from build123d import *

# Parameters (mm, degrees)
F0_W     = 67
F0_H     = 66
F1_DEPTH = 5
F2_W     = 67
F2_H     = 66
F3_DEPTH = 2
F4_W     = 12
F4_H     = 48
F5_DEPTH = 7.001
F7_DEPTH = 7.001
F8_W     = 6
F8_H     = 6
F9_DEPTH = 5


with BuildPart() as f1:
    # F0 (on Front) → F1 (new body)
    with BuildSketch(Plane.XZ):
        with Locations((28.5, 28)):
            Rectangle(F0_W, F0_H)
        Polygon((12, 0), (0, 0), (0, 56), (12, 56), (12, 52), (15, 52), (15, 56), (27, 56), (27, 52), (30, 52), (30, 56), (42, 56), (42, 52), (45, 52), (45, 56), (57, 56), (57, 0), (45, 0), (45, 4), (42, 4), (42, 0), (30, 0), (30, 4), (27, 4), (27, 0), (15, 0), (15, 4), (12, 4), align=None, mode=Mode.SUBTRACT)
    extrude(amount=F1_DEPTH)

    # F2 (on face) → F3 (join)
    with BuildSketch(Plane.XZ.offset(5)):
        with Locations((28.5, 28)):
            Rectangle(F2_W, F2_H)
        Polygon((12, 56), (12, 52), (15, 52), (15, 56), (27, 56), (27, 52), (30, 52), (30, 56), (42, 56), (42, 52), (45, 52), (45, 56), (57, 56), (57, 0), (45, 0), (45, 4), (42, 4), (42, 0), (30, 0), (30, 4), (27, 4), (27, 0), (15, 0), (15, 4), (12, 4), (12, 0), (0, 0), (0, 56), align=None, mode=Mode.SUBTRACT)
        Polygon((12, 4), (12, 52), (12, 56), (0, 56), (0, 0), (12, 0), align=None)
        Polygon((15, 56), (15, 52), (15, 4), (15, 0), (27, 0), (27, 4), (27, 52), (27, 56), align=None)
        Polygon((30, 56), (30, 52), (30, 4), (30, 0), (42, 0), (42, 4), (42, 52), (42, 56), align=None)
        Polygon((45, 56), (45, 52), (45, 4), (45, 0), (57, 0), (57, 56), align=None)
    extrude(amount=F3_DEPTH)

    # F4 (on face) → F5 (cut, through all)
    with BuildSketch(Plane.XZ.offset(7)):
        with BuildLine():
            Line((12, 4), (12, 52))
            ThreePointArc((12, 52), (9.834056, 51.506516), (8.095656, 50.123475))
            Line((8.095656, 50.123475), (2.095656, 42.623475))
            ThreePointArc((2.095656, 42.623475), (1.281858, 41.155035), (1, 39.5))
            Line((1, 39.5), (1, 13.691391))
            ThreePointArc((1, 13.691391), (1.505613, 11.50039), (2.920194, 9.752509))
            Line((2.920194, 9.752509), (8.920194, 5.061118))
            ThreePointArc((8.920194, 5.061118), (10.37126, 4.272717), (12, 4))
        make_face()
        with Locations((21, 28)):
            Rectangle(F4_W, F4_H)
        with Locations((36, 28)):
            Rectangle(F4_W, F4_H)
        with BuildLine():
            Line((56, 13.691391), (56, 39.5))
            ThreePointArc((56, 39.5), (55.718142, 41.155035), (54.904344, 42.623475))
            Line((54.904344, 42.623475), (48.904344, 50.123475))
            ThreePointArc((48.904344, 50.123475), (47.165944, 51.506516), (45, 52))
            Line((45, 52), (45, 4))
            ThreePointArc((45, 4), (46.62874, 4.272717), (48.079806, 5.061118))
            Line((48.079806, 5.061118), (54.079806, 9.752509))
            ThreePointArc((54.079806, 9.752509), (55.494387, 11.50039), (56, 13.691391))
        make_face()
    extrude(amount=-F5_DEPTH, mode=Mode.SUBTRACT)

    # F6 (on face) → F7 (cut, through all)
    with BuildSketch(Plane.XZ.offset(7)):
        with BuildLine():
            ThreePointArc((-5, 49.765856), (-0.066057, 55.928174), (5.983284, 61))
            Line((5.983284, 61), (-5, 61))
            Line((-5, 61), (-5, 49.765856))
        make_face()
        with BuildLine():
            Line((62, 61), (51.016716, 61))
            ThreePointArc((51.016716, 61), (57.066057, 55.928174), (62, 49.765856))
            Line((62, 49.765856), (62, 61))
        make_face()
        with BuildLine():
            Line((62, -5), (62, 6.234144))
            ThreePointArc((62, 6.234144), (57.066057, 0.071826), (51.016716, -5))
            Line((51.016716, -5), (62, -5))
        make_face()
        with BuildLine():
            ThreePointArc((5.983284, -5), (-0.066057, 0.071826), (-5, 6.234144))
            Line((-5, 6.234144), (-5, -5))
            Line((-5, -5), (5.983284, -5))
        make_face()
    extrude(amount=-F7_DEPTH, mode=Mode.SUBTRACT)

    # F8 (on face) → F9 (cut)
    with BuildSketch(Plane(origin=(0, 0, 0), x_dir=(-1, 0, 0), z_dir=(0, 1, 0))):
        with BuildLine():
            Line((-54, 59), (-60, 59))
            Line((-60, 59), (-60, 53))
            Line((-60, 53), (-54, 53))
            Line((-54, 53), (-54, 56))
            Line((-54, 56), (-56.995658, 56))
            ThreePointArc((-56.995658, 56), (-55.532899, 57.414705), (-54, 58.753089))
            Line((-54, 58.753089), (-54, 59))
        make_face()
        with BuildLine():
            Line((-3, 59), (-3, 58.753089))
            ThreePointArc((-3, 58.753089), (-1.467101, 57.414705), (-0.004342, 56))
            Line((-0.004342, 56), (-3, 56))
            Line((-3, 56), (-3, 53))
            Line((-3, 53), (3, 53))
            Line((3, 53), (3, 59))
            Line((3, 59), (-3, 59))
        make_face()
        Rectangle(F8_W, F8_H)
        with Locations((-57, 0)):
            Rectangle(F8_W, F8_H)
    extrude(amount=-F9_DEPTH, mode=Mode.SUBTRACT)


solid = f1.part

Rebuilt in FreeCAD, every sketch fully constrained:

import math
import FreeCAD as App
import Part
import Sketcher
Q = App.Units.Quantity


def add_polygon(sketch, points):
    """Adds a closed chain of lines whose ends are joined by coincident constraints."""
    first, n = sketch.GeometryCount, len(points)
    for a, b in zip(points, points[1:] + points[:1]):
        sketch.addGeometry(Part.LineSegment(App.Vector(*a, 0), App.Vector(*b, 0)), False)
    for i in range(n):
        sketch.addConstraint(Sketcher.Constraint("Coincident", first + i, 2, first + (i + 1) % n, 1))

doc = App.newDocument("Part")
body = doc.addObject("PartDesign::Body", "Body")

# Sketch on XZ plane
sketch1 = body.newObject("Sketcher::SketchObject", "Sketch")
sketch1.AttachmentSupport = (doc.getObject("XZ_Plane"), [""])
sketch1.MapMode = "FlatFace"
add_polygon(sketch1, [(-5, 61), (-5, -5), (62, -5), (62, 61)])  # lines 0-3
add_polygon(sketch1, [(12, 4), (12, 0), (0, 0), (0, 56), (12, 56), (12, 52), (15, 52), (15, 56), (27, 56), (27, 52), (30, 52), (30, 56), (42, 56), (42, 52), (45, 52), (45, 56), (57, 56), (57, 0), (45, 0), (45, 4), (42, 4), (42, 0), (30, 0), (30, 4), (27, 4), (27, 0), (15, 0), (15, 4)])  # lines 4-31
sketch1.addConstraint([
    Sketcher.Constraint("Vertical", 0),
    Sketcher.Constraint("Horizontal", 1),
    Sketcher.Constraint("Vertical", 2),
    Sketcher.Constraint("Horizontal", 3),
    Sketcher.Constraint("Vertical", 4),
    Sketcher.Constraint("Horizontal", 5),
    Sketcher.Constraint("Vertical", 6),
    Sketcher.Constraint("Horizontal", 7),
    Sketcher.Constraint("Vertical", 8),
    Sketcher.Constraint("Horizontal", 9),
    Sketcher.Constraint("Vertical", 10),
    Sketcher.Constraint("Horizontal", 11),
    Sketcher.Constraint("Vertical", 12),
    Sketcher.Constraint("Horizontal", 13),
    Sketcher.Constraint("Vertical", 14),
    Sketcher.Constraint("Horizontal", 15),
    Sketcher.Constraint("Vertical", 16),
    Sketcher.Constraint("Horizontal", 17),
    Sketcher.Constraint("Vertical", 18),
    Sketcher.Constraint("Horizontal", 19),
    Sketcher.Constraint("Vertical", 20),
    Sketcher.Constraint("Horizontal", 21),
    Sketcher.Constraint("Vertical", 22),
    Sketcher.Constraint("Horizontal", 23),
    Sketcher.Constraint("Vertical", 24),
    Sketcher.Constraint("Horizontal", 25),
    Sketcher.Constraint("Vertical", 26),
    Sketcher.Constraint("Horizontal", 27),
    Sketcher.Constraint("Vertical", 28),
    Sketcher.Constraint("Horizontal", 29),
    Sketcher.Constraint("Vertical", 30),
    Sketcher.Constraint("Horizontal", 31),
    Sketcher.Constraint("Coincident", 5, 2, -1, 1),
    Sketcher.Constraint("PointOnObject", 20, 2, -1),
    Sketcher.Constraint("PointOnObject", 24, 2, -1),
    Sketcher.Constraint("PointOnObject", 28, 2, -1),
    Sketcher.Constraint("Horizontal", 7, 2, 10, 2),
    Sketcher.Constraint("Horizontal", 9, 2, 12, 2),
    Sketcher.Constraint("Horizontal", 11, 2, 14, 2),
    Sketcher.Constraint("Horizontal", 13, 2, 16, 2),
    Sketcher.Constraint("Horizontal", 15, 2, 18, 2),
    Sketcher.Constraint("Horizontal", 23, 2, 26, 2),
    Sketcher.Constraint("Horizontal", 27, 2, 30, 2),
    Sketcher.Constraint("Vertical", 4, 2, 7, 2),
    Sketcher.Constraint("Vertical", 18, 2, 21, 2),
    Sketcher.Constraint("Vertical", 16, 2, 23, 2),
    Sketcher.Constraint("Vertical", 14, 2, 25, 2),
    Sketcher.Constraint("Vertical", 12, 2, 27, 2),
    Sketcher.Constraint("Vertical", 10, 2, 29, 2),
    Sketcher.Constraint("Equal", 7, 11),
    Sketcher.Constraint("Equal", 9, 13),
    Sketcher.Constraint("Equal", 11, 15),
    Sketcher.Constraint("Equal", 13, 17),
    Sketcher.Constraint("Equal", 15, 19),
    Sketcher.Constraint("Equal", 4, 8),
    Sketcher.Constraint("DistanceX", 1, 1, 1, 2, Q("67 mm")),
    Sketcher.Constraint("DistanceX", 5, 2, 5, 1, Q("12 mm")),
    Sketcher.Constraint("DistanceX", 9, 1, 9, 2, Q("3 mm")),
    Sketcher.Constraint("DistanceY", 0, 2, 0, 1, Q("66 mm")),
    Sketcher.Constraint("DistanceY", 4, 2, 4, 1, Q("4 mm")),
    Sketcher.Constraint("DistanceY", 6, 1, 6, 2, Q("56 mm")),
    Sketcher.Constraint("DistanceX", 0, 2, -1, 1, Q("5 mm")),
    Sketcher.Constraint("DistanceY", 0, 2, -1, 1, Q("5 mm")),
])
pad1 = body.newObject("PartDesign::Pad", "Pad")
pad1.Profile = sketch1
pad1.Length = 5

# Sketch on XZ plane
sketch2 = body.newObject("Sketcher::SketchObject", "Sketch001")
sketch2.AttachmentSupport = (doc.getObject("XZ_Plane"), [""])
sketch2.MapMode = "FlatFace"
sketch2.AttachmentOffset = App.Placement(App.Vector(0, 0, 5), App.Rotation())
add_polygon(sketch2, [(-5, 61), (-5, -5), (62, -5), (62, 61)])  # lines 0-3
add_polygon(sketch2, [(15, 4), (12, 4), (12, 52), (15, 52)])  # lines 4-7
add_polygon(sketch2, [(27, 52), (30, 52), (30, 4), (27, 4)])  # lines 8-11
add_polygon(sketch2, [(42, 52), (45, 52), (45, 4), (42, 4)])  # lines 12-15
sketch2.addConstraint([
    Sketcher.Constraint("Vertical", 0),
    Sketcher.Constraint("Horizontal", 1),
    Sketcher.Constraint("Vertical", 2),
    Sketcher.Constraint("Horizontal", 3),
    Sketcher.Constraint("Horizontal", 4),
    Sketcher.Constraint("Vertical", 5),
    Sketcher.Constraint("Horizontal", 6),
    Sketcher.Constraint("Vertical", 7),
    Sketcher.Constraint("Horizontal", 8),
    Sketcher.Constraint("Vertical", 9),
    Sketcher.Constraint("Horizontal", 10),
    Sketcher.Constraint("Vertical", 11),
    Sketcher.Constraint("Horizontal", 12),
    Sketcher.Constraint("Vertical", 13),
    Sketcher.Constraint("Horizontal", 14),
    Sketcher.Constraint("Vertical", 15),
    Sketcher.Constraint("Horizontal", 6, 2, 8, 2),
    Sketcher.Constraint("Horizontal", 7, 2, 9, 2),
    Sketcher.Constraint("Horizontal", 11, 2, 12, 2),
    Sketcher.Constraint("Horizontal", 10, 2, 13, 2),
    Sketcher.Constraint("Equal", 6, 8),
    Sketcher.Constraint("Equal", 10, 12),
    Sketcher.Constraint("DistanceX", 1, 1, 1, 2, Q("67 mm")),
    Sketcher.Constraint("DistanceX", 4, 2, 4, 1, Q("3 mm")),
    Sketcher.Constraint("DistanceY", 0, 2, 0, 1, Q("66 mm")),
    Sketcher.Constraint("DistanceY", 5, 1, 5, 2, Q("48 mm")),
    Sketcher.Constraint("DistanceX", 0, 2, -1, 1, Q("5 mm")),
    Sketcher.Constraint("DistanceY", 0, 2, -1, 1, Q("5 mm")),
    Sketcher.Constraint("DistanceX", -1, 1, 4, 2, Q("12 mm")),
    Sketcher.Constraint("DistanceY", -1, 1, 4, 2, Q("4 mm")),
    Sketcher.Constraint("DistanceX", -1, 1, 8, 2, Q("30 mm")),
    Sketcher.Constraint("DistanceX", -1, 1, 12, 2, Q("45 mm")),
])
pad2 = body.newObject("PartDesign::Pad", "Pad001")
pad2.Profile = sketch2
pad2.Length = 2

# Sketch on XZ plane
sketch3 = body.newObject("Sketcher::SketchObject", "Sketch002")
sketch3.AttachmentSupport = (doc.getObject("XZ_Plane"), [""])
sketch3.MapMode = "FlatFace"
sketch3.AttachmentOffset = App.Placement(App.Vector(0, 0, 7), App.Rotation())
sketch3.addGeometry(Part.LineSegment(App.Vector(12, 4, 0), App.Vector(12, 52, 0)), False)  # 0
sketch3.addGeometry(Part.ArcOfCircle(Part.Circle(App.Vector(12, 47.000001, 0), App.Vector(0, 0, 1), 4.999999), math.radians(89.999998), math.radians(141.3402)), False)  # 1
sketch3.addGeometry(Part.LineSegment(App.Vector(8.095656, 50.123475, 0), App.Vector(2.095656, 42.623475, 0)), False)  # 2
sketch3.addGeometry(Part.ArcOfCircle(Part.Circle(App.Vector(5.99999, 39.500003, 0), App.Vector(0, 0, 1), 4.99999), math.radians(141.340152), math.radians(180.000035)), False)  # 3
sketch3.addGeometry(Part.LineSegment(App.Vector(1, 39.5, 0), App.Vector(1, 13.691391, 0)), False)  # 4
sketch3.addGeometry(Part.ArcOfCircle(Part.Circle(App.Vector(5.999998, 13.691391, 0), App.Vector(0, 0, 1), 4.999998), math.radians(179.999996), math.radians(231.978213)), False)  # 5
sketch3.addGeometry(Part.LineSegment(App.Vector(2.920194, 9.752509, 0), App.Vector(8.920194, 5.061118, 0)), False)  # 6
sketch3.addGeometry(Part.ArcOfCircle(Part.Circle(App.Vector(12, 8.999999, 0), App.Vector(0, 0, 1), 4.999999), math.radians(-128.021808), math.radians(-90.000004)), False)  # 7
add_polygon(sketch3, [(15, 52), (15, 4), (27, 4), (27, 52)])  # lines 8-11
add_polygon(sketch3, [(30, 52), (30, 4), (42, 4), (42, 52)])  # lines 12-15
sketch3.addGeometry(Part.LineSegment(App.Vector(56, 13.691391, 0), App.Vector(56, 39.5, 0)), False)  # 16
sketch3.addGeometry(Part.ArcOfCircle(Part.Circle(App.Vector(51.00001, 39.500003, 0), App.Vector(0, 0, 1), 4.99999), math.radians(-0.000035), math.radians(38.659848)), False)  # 17
sketch3.addGeometry(Part.LineSegment(App.Vector(54.904344, 42.623475, 0), App.Vector(48.904344, 50.123475, 0)), False)  # 18
sketch3.addGeometry(Part.ArcOfCircle(Part.Circle(App.Vector(45, 47.000001, 0), App.Vector(0, 0, 1), 4.999999), math.radians(38.6598), math.radians(90.000002)), False)  # 19
sketch3.addGeometry(Part.LineSegment(App.Vector(45, 52, 0), App.Vector(45, 4, 0)), False)  # 20
sketch3.addGeometry(Part.ArcOfCircle(Part.Circle(App.Vector(45, 8.999999, 0), App.Vector(0, 0, 1), 4.999999), math.radians(-89.999996), math.radians(-51.978192)), False)  # 21
sketch3.addGeometry(Part.LineSegment(App.Vector(48.079806, 5.061118, 0), App.Vector(54.079806, 9.752509, 0)), False)  # 22
sketch3.addGeometry(Part.ArcOfCircle(Part.Circle(App.Vector(51.000002, 13.691391, 0), App.Vector(0, 0, 1), 4.999998), math.radians(-51.978213), math.radians(0.000004)), False)  # 23
sketch3.addConstraint([
    Sketcher.Constraint("Coincident", 0, 2, 1, 1),
    Sketcher.Constraint("Tangent", 1, 2, 2, 1),
    Sketcher.Constraint("Tangent", 2, 2, 3, 1),
    Sketcher.Constraint("Tangent", 3, 2, 4, 1),
    Sketcher.Constraint("Tangent", 4, 2, 5, 1),
    Sketcher.Constraint("Tangent", 5, 2, 6, 1),
    Sketcher.Constraint("Tangent", 6, 2, 7, 1),
    Sketcher.Constraint("Coincident", 7, 2, 0, 1),
    Sketcher.Constraint("Tangent", 16, 2, 17, 1),
    Sketcher.Constraint("Tangent", 17, 2, 18, 1),
    Sketcher.Constraint("Tangent", 18, 2, 19, 1),
    Sketcher.Constraint("Coincident", 19, 2, 20, 1),
    Sketcher.Constraint("Coincident", 20, 2, 21, 1),
    Sketcher.Constraint("Tangent", 21, 2, 22, 1),
    Sketcher.Constraint("Tangent", 22, 2, 23, 1),
    Sketcher.Constraint("Tangent", 23, 2, 16, 1),
    Sketcher.Constraint("Vertical", 0),
    Sketcher.Constraint("Vertical", 4),
    Sketcher.Constraint("Vertical", 8),
    Sketcher.Constraint("Horizontal", 9),
    Sketcher.Constraint("Vertical", 10),
    Sketcher.Constraint("Horizontal", 11),
    Sketcher.Constraint("Vertical", 12),
    Sketcher.Constraint("Horizontal", 13),
    Sketcher.Constraint("Vertical", 14),
    Sketcher.Constraint("Horizontal", 15),
    Sketcher.Constraint("Vertical", 16),
    Sketcher.Constraint("Vertical", 20),
    Sketcher.Constraint("Equal", 1, 5),
    Sketcher.Constraint("Equal", 5, 7),
    Sketcher.Constraint("Equal", 3, 17),
    Sketcher.Constraint("Equal", 7, 19),
    Sketcher.Constraint("Equal", 19, 21),
    Sketcher.Constraint("Equal", 21, 23),
    Sketcher.Constraint("Horizontal", 3, 3, 17, 3),
    Sketcher.Constraint("Horizontal", 1, 3, 19, 3),
    Sketcher.Constraint("Horizontal", 7, 3, 21, 3),
    Sketcher.Constraint("Horizontal", 5, 3, 23, 3),
    Sketcher.Constraint("Horizontal", 7, 2, 8, 2),
    Sketcher.Constraint("Horizontal", 0, 2, 10, 2),
    Sketcher.Constraint("Horizontal", 9, 2, 12, 2),
    Sketcher.Constraint("Horizontal", 11, 2, 14, 2),
    Sketcher.Constraint("Horizontal", 2, 2, 17, 2),
    Sketcher.Constraint("Horizontal", 6, 2, 21, 2),
    Sketcher.Constraint("Vertical", 1, 3, 7, 3),
    Sketcher.Constraint("Vertical", 7, 3, 0, 2),
    Sketcher.Constraint("Vertical", 21, 3, 19, 2),
    Sketcher.Constraint("Equal", 11, 13),
    Sketcher.Constraint("Radius", 1, Q("4.999999 mm")),
    Sketcher.Constraint("DistanceX", 9, 1, 9, 2, Q("12 mm")),
    Sketcher.Constraint("DistanceY", 0, 1, 0, 2, Q("48 mm")),
    Sketcher.Constraint("DistanceX", -1, 1, 1, 3, Q("12 mm")),
    Sketcher.Constraint("DistanceY", -1, 1, 1, 3, Q("47.000001 mm")),
    Sketcher.Constraint("DistanceX", -1, 1, 5, 3, Q("5.999998 mm")),
    Sketcher.Constraint("DistanceX", -1, 1, 19, 3, Q("45 mm")),
    Sketcher.Constraint("DistanceX", -1, 1, 8, 2, Q("15 mm")),
    Sketcher.Constraint("DistanceX", -1, 1, 12, 2, Q("30 mm")),
    Sketcher.Constraint("DistanceX", 2, 2, 1, 2, Q("6 mm")),
    Sketcher.Constraint("DistanceY", -1, 1, 3, 2, Q("39.5 mm")),
    Sketcher.Constraint("DistanceY", 4, 2, 4, 1, Q("25.808609 mm")),
])
pocket1 = body.newObject("PartDesign::Pocket", "Pocket")
pocket1.Profile = sketch3
pocket1.Type = "ThroughAll"

# Sketch on XZ plane
sketch4 = body.newObject("Sketcher::SketchObject", "Sketch003")
sketch4.AttachmentSupport = (doc.getObject("XZ_Plane"), [""])
sketch4.MapMode = "FlatFace"
sketch4.AttachmentOffset = App.Placement(App.Vector(0, 0, 7), App.Rotation())
sketch4.addGeometry([
    Part.ArcOfCircle(Part.Circle(App.Vector(28.49999, 28.00001, 0), App.Vector(0, 0, 1), 39.949986), math.radians(124.306681), math.radians(146.987132)),  # 0
    Part.LineSegment(App.Vector(5.983284, 61, 0), App.Vector(-5, 61, 0)),  # 1
    Part.LineSegment(App.Vector(-5, 61, 0), App.Vector(-5, 49.765856, 0)),  # 2
    Part.LineSegment(App.Vector(62, 61, 0), App.Vector(51.016716, 61, 0)),  # 3
    Part.ArcOfCircle(Part.Circle(App.Vector(28.50001, 28.00001, 0), App.Vector(0, 0, 1), 39.949986), math.radians(33.012868), math.radians(55.693319)),  # 4
    Part.LineSegment(App.Vector(62, 49.765856, 0), App.Vector(62, 61, 0)),  # 5
    Part.LineSegment(App.Vector(62, -5, 0), App.Vector(62, 6.234144, 0)),  # 6
    Part.ArcOfCircle(Part.Circle(App.Vector(28.50001, 27.99999, 0), App.Vector(0, 0, 1), 39.949986), math.radians(-55.693319), math.radians(-33.012868)),  # 7
    Part.LineSegment(App.Vector(51.016716, -5, 0), App.Vector(62, -5, 0)),  # 8
    Part.ArcOfCircle(Part.Circle(App.Vector(28.49999, 27.99999, 0), App.Vector(0, 0, 1), 39.949986), math.radians(-146.987132), math.radians(-124.306681)),  # 9
    Part.LineSegment(App.Vector(-5, 6.234144, 0), App.Vector(-5, -5, 0)),  # 10
    Part.LineSegment(App.Vector(-5, -5, 0), App.Vector(5.983284, -5, 0)),  # 11
], False)
sketch4.addConstraint([
    Sketcher.Constraint("Coincident", 0, 1, 1, 1),
    Sketcher.Constraint("Coincident", 1, 2, 2, 1),
    Sketcher.Constraint("Coincident", 2, 2, 0, 2),
    Sketcher.Constraint("Coincident", 3, 2, 4, 2),
    Sketcher.Constraint("Coincident", 4, 1, 5, 1),
    Sketcher.Constraint("Coincident", 5, 2, 3, 1),
    Sketcher.Constraint("Coincident", 6, 2, 7, 2),
    Sketcher.Constraint("Coincident", 7, 1, 8, 1),
    Sketcher.Constraint("Coincident", 8, 2, 6, 1),
    Sketcher.Constraint("Coincident", 9, 1, 10, 1),
    Sketcher.Constraint("Coincident", 10, 2, 11, 1),
    Sketcher.Constraint("Coincident", 11, 2, 9, 2),
    Sketcher.Constraint("Horizontal", 1),
    Sketcher.Constraint("Vertical", 2),
    Sketcher.Constraint("Horizontal", 3),
    Sketcher.Constraint("Vertical", 5),
    Sketcher.Constraint("Vertical", 6),
    Sketcher.Constraint("Horizontal", 8),
    Sketcher.Constraint("Vertical", 10),
    Sketcher.Constraint("Horizontal", 11),
    Sketcher.Constraint("Equal", 0, 4),
    Sketcher.Constraint("Equal", 4, 7),
    Sketcher.Constraint("Equal", 7, 9),
    Sketcher.Constraint("Horizontal", 0, 3, 4, 3),
    Sketcher.Constraint("Horizontal", 7, 3, 9, 3),
    Sketcher.Constraint("Horizontal", 1, 2, 3, 2),
    Sketcher.Constraint("Horizontal", 2, 2, 4, 1),
    Sketcher.Constraint("Horizontal", 6, 2, 9, 1),
    Sketcher.Constraint("Horizontal", 8, 2, 10, 2),
    Sketcher.Constraint("Vertical", 4, 3, 7, 3),
    Sketcher.Constraint("Vertical", 0, 3, 9, 3),
    Sketcher.Constraint("Vertical", 5, 2, 6, 2),
    Sketcher.Constraint("Vertical", 3, 2, 7, 1),
    Sketcher.Constraint("DistanceY", -1, 1, 0, 1, Q("61 mm")),
    Sketcher.Constraint("DistanceX", 1, 2, -1, 1, Q("5 mm")),
    Sketcher.Constraint("DistanceX", -1, 1, 4, 1, Q("62 mm")),
    Sketcher.Constraint("DistanceY", 7, 1, -1, 1, Q("5 mm")),
    Sketcher.Constraint("Radius", 0, Q("39.949986 mm")),
    Sketcher.Constraint("DistanceX", 1, 2, 1, 1, Q("10.983284 mm")),
    Sketcher.Constraint("DistanceY", 2, 2, 2, 1, Q("11.234144 mm")),
])
pocket2 = body.newObject("PartDesign::Pocket", "Pocket001")
pocket2.Profile = sketch4
pocket2.Type = "ThroughAll"

# Sketch on XZ plane
sketch5 = body.newObject("Sketcher::SketchObject", "Sketch004")
sketch5.AttachmentSupport = (doc.getObject("XZ_Plane"), [""])
sketch5.MapMode = "FlatFace"
sketch5.addGeometry(Part.LineSegment(App.Vector(54, 59, 0), App.Vector(60, 59, 0)), False)  # 0
sketch5.addGeometry(Part.LineSegment(App.Vector(60, 59, 0), App.Vector(60, 53, 0)), False)  # 1
sketch5.addGeometry(Part.LineSegment(App.Vector(60, 53, 0), App.Vector(54, 53, 0)), False)  # 2
sketch5.addGeometry(Part.LineSegment(App.Vector(54, 53, 0), App.Vector(54, 56, 0)), False)  # 3
sketch5.addGeometry(Part.LineSegment(App.Vector(54, 56, 0), App.Vector(56.995658, 56, 0)), False)  # 4
sketch5.addGeometry(Part.ArcOfCircle(Part.Circle(App.Vector(28.499969, 27.999958, 0), App.Vector(0, 0, 1), 39.950052), math.radians(44.497346), math.radians(50.33499)), False)  # 5
sketch5.addGeometry(Part.LineSegment(App.Vector(54, 58.753089, 0), App.Vector(54, 59, 0)), False)  # 6
sketch5.addGeometry(Part.LineSegment(App.Vector(3, 59, 0), App.Vector(3, 58.753089, 0)), False)  # 7
sketch5.addGeometry(Part.ArcOfCircle(Part.Circle(App.Vector(28.500031, 27.999958, 0), App.Vector(0, 0, 1), 39.950052), math.radians(129.66501), math.radians(135.502654)), False)  # 8
sketch5.addGeometry(Part.LineSegment(App.Vector(0.004342, 56, 0), App.Vector(3, 56, 0)), False)  # 9
sketch5.addGeometry(Part.LineSegment(App.Vector(3, 56, 0), App.Vector(3, 53, 0)), False)  # 10
sketch5.addGeometry(Part.LineSegment(App.Vector(3, 53, 0), App.Vector(-3, 53, 0)), False)  # 11
sketch5.addGeometry(Part.LineSegment(App.Vector(-3, 53, 0), App.Vector(-3, 59, 0)), False)  # 12
sketch5.addGeometry(Part.LineSegment(App.Vector(-3, 59, 0), App.Vector(3, 59, 0)), False)  # 13
add_polygon(sketch5, [(3, 3), (3, -3), (-3, -3), (-3, 3)])  # lines 14-17
add_polygon(sketch5, [(60, 3), (60, -3), (54, -3), (54, 3)])  # lines 18-21
sketch5.addConstraint([
    Sketcher.Constraint("Coincident", 0, 2, 1, 1),
    Sketcher.Constraint("Coincident", 1, 2, 2, 1),
    Sketcher.Constraint("Coincident", 2, 2, 3, 1),
    Sketcher.Constraint("Coincident", 3, 2, 4, 1),
    Sketcher.Constraint("Coincident", 4, 2, 5, 1),
    Sketcher.Constraint("Coincident", 5, 2, 6, 1),
    Sketcher.Constraint("Coincident", 6, 2, 0, 1),
    Sketcher.Constraint("Coincident", 7, 2, 8, 1),
    Sketcher.Constraint("Coincident", 8, 2, 9, 1),
    Sketcher.Constraint("Coincident", 9, 2, 10, 1),
    Sketcher.Constraint("Coincident", 10, 2, 11, 1),
    Sketcher.Constraint("Coincident", 11, 2, 12, 1),
    Sketcher.Constraint("Coincident", 12, 2, 13, 1),
    Sketcher.Constraint("Coincident", 13, 2, 7, 1),
    Sketcher.Constraint("Horizontal", 0),
    Sketcher.Constraint("Vertical", 1),
    Sketcher.Constraint("Horizontal", 2),
    Sketcher.Constraint("Vertical", 3),
    Sketcher.Constraint("Horizontal", 4),
    Sketcher.Constraint("Vertical", 6),
    Sketcher.Constraint("Vertical", 7),
    Sketcher.Constraint("Horizontal", 9),
    Sketcher.Constraint("Vertical", 10),
    Sketcher.Constraint("Horizontal", 11),
    Sketcher.Constraint("Vertical", 12),
    Sketcher.Constraint("Horizontal", 13),
    Sketcher.Constraint("Vertical", 14),
    Sketcher.Constraint("Horizontal", 15),
    Sketcher.Constraint("Vertical", 16),
    Sketcher.Constraint("Horizontal", 17),
    Sketcher.Constraint("Vertical", 18),
    Sketcher.Constraint("Horizontal", 19),
    Sketcher.Constraint("Vertical", 20),
    Sketcher.Constraint("Horizontal", 21),
    Sketcher.Constraint("Equal", 5, 8),
    Sketcher.Constraint("Symmetric", 14, 2, 16, 2, -1, 1),
    Sketcher.Constraint("Horizontal", 5, 3, 8, 3),
    Sketcher.Constraint("Horizontal", 5, 2, 7, 2),
    Sketcher.Constraint("Horizontal", 4, 2, 8, 2),
    Sketcher.Constraint("Horizontal", 2, 2, 10, 2),
    Sketcher.Constraint("Horizontal", 6, 2, 12, 2),
    Sketcher.Constraint("Horizontal", 15, 2, 18, 2),
    Sketcher.Constraint("Horizontal", 17, 2, 20, 2),
    Sketcher.Constraint("Vertical", 3, 2, 5, 2),
    Sketcher.Constraint("Vertical", 7, 2, 9, 2),
    Sketcher.Constraint("Vertical", 13, 2, 14, 2),
    Sketcher.Constraint("Vertical", 12, 2, 15, 2),
    Sketcher.Constraint("Vertical", 1, 2, 18, 2),
    Sketcher.Constraint("Vertical", 6, 2, 19, 2),
    Sketcher.Constraint("Equal", 2, 11),
    Sketcher.Constraint("Equal", 21, 1),
    Sketcher.Constraint("Equal", 12, 14),
    Sketcher.Constraint("DistanceX", 0, 1, 0, 2, Q("6 mm")),
    Sketcher.Constraint("DistanceY", 3, 1, 3, 2, Q("3 mm")),
    Sketcher.Constraint("DistanceX", -1, 1, 0, 2, Q("60 mm")),
    Sketcher.Constraint("DistanceY", -1, 1, 0, 2, Q("59 mm")),
    Sketcher.Constraint("Radius", 5, Q("39.950052 mm")),
    Sketcher.Constraint("DistanceX", 9, 1, 9, 2, Q("2.995658 mm")),
    Sketcher.Constraint("DistanceY", 6, 1, 6, 2, Q("0.246911 mm")),
])
pocket3 = body.newObject("PartDesign::Pocket", "Pocket002")
pocket3.Profile = sketch5
pocket3.Length = 5
pocket3.Reversed = True

doc.recompute()
